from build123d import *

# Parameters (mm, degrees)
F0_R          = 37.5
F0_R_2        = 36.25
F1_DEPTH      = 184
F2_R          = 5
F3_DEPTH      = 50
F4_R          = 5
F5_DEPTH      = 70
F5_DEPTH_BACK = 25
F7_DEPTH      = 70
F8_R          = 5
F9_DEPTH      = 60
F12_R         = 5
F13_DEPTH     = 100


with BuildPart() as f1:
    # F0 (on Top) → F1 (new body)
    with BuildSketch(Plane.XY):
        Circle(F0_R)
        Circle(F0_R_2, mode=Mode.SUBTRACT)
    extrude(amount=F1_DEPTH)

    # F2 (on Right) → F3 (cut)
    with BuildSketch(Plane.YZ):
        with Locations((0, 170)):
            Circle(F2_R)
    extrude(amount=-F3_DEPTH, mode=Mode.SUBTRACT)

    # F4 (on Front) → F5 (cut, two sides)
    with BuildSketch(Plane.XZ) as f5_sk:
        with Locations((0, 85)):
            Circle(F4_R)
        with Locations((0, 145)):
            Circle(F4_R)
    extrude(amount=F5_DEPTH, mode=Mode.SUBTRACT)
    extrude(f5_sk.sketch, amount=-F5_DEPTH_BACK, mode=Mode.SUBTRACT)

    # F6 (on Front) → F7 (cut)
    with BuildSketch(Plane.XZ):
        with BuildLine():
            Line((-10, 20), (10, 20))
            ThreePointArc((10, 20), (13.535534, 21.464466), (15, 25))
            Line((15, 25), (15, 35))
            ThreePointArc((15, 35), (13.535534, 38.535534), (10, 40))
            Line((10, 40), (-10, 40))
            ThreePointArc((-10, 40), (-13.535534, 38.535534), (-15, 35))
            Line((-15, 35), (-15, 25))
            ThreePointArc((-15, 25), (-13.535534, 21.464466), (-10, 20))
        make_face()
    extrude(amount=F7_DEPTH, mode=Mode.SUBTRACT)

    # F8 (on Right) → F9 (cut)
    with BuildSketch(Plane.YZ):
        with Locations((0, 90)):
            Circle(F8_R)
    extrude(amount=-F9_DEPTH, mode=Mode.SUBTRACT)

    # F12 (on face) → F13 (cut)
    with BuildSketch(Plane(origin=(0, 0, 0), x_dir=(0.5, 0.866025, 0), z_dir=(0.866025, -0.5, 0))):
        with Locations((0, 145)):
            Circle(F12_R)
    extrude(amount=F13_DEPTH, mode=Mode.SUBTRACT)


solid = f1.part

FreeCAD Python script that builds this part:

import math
import FreeCAD as App
import Part
import Sketcher
from FreeCAD import Vector
Q = App.Units.Quantity

doc = App.newDocument("Part")
body = doc.addObject("PartDesign::Body", "Body")

sketch1 = doc.addObject("Sketcher::SketchObject", "Sketch")
body.addObject(sketch1)
sketch1.AttachmentSupport = (doc.XY_Plane, [""])
sketch1.MapMode = "FlatFace"
sketch1.addGeometry(Part.Circle(Vector(0, 0, 0), Vector(0, 0, 1), 38), False)
sketch1.addGeometry(Part.Circle(Vector(0, 0, 0), Vector(0, 0, 1), 36), False)
sketch1.addConstraint(Sketcher.Constraint("Coincident", 0, 3, -1, 1))
sketch1.addConstraint(Sketcher.Constraint("Coincident", 1, 3, -1, 1))
sketch1.addConstraint(Sketcher.Constraint("Diameter", 0, Q("75 mm")))
sketch1.addConstraint(Sketcher.Constraint("Diameter", 1, Q("72.5 mm")))
pad1 = doc.addObject("PartDesign::Pad", "Pad")
body.addObject(pad1)
pad1.Profile = sketch1
pad1.Length = 184

sketch2 = doc.addObject("Sketcher::SketchObject", "Sketch001")
body.addObject(sketch2)
sketch2.AttachmentSupport = (doc.YZ_Plane, [""])
sketch2.MapMode = "FlatFace"
sketch2.addGeometry(Part.Circle(Vector(0, 170, 0), Vector(0, 0, 1), 5), False)
sketch2.addConstraint(Sketcher.Constraint("PointOnObject", 0, 3, -2))
sketch2.addConstraint(Sketcher.Constraint("Diameter", 0, Q("10 mm")))
sketch2.addConstraint(Sketcher.Constraint("DistanceY", -1, 1, 0, 3, Q("170 mm")))
pocket1 = doc.addObject("PartDesign::Pocket", "Pocket")
body.addObject(pocket1)
pocket1.Profile = sketch2
pocket1.Length = 50

sketch3 = doc.addObject("Sketcher::SketchObject", "Sketch002")
body.addObject(sketch3)
sketch3.AttachmentSupport = (doc.XZ_Plane, [""])
sketch3.MapMode = "FlatFace"
sketch3.addGeometry(Part.Circle(Vector(0, 85, 0), Vector(0, 0, 1), 5), False)
sketch3.addGeometry(Part.Circle(Vector(0, 145, 0), Vector(0, 0, 1), 5), False)
sketch3.addConstraint(Sketcher.Constraint("Equal", 0, 1))
sketch3.addConstraint(Sketcher.Constraint("PointOnObject", 0, 3, -2))
sketch3.addConstraint(Sketcher.Constraint("PointOnObject", 1, 3, -2))
sketch3.addConstraint(Sketcher.Constraint("Diameter", 0, Q("10 mm")))
sketch3.addConstraint(Sketcher.Constraint("DistanceY", -1, 1, 0, 3, Q("85 mm")))
sketch3.addConstraint(Sketcher.Constraint("DistanceY", -1, 1, 1, 3, Q("145 mm")))
pocket2 = doc.addObject("PartDesign::Pocket", "Pocket001")
body.addObject(pocket2)
pocket2.Profile = sketch3
pocket2.Type = "TwoLengths"
pocket2.Length = 70
pocket2.Length2 = 25
pocket2.Reversed = True

sketch4 = doc.addObject("Sketcher::SketchObject", "Sketch003")
body.addObject(sketch4)
sketch4.AttachmentSupport = (doc.XZ_Plane, [""])
sketch4.MapMode = "FlatFace"
sketch4.addGeometry(Part.LineSegment(Vector(-10, 20, 0), Vector(10, 20, 0)), False)
sketch4.addGeometry(Part.ArcOfCircle(Part.Circle(Vector(10, 25, 0), Vector(0, 0, 1), 5), math.radians(-90), math.radians(0)), False)
sketch4.addGeometry(Part.LineSegment(Vector(15, 25, 0), Vector(15, 35, 0)), False)
sketch4.addGeometry(Part.ArcOfCircle(Part.Circle(Vector(10, 35, 0), Vector(0, 0, 1), 5), math.radians(0), math.radians(90)), False)
sketch4.addGeometry(Part.LineSegment(Vector(10, 40, 0), Vector(-10, 40, 0)), False)
sketch4.addGeometry(Part.ArcOfCircle(Part.Circle(Vector(-10, 35, 0), Vector(0, 0, 1), 5), math.radians(90), math.radians(180)), False)
sketch4.addGeometry(Part.LineSegment(Vector(-15, 35, 0), Vector(-15, 25, 0)), False)
sketch4.addGeometry(Part.ArcOfCircle(Part.Circle(Vector(-10, 25, 0), Vector(0, 0, 1), 5), math.radians(180), math.radians(270)), False)
sketch4.addConstraint(Sketcher.Constraint("Tangent", 0, 2, 1, 1))
sketch4.addConstraint(Sketcher.Constraint("Tangent", 1, 2, 2, 1))
sketch4.addConstraint(Sketcher.Constraint("Tangent", 2, 2, 3, 1))
sketch4.addConstraint(Sketcher.Constraint("Tangent", 3, 2, 4, 1))
sketch4.addConstraint(Sketcher.Constraint("Tangent", 4, 2, 5, 1))
sketch4.addConstraint(Sketcher.Constraint("Tangent", 5, 2, 6, 1))
sketch4.addConstraint(Sketcher.Constraint("Tangent", 6, 2, 7, 1))
sketch4.addConstraint(Sketcher.Constraint("Tangent", 7, 2, 0, 1))
sketch4.addConstraint(Sketcher.Constraint("Horizontal", 0))
sketch4.addConstraint(Sketcher.Constraint("Vertical", 2))
sketch4.addConstraint(Sketcher.Constraint("Horizontal", 4))
sketch4.addConstraint(Sketcher.Constraint("Vertical", 6))
sketch4.addConstraint(Sketcher.Constraint("Equal", 1, 3))
sketch4.addConstraint(Sketcher.Constraint("Equal", 3, 5))
sketch4.addConstraint(Sketcher.Constraint("Equal", 5, 7))
sketch4.addConstraint(Sketcher.Constraint("Radius", 1, Q("5 mm")))
sketch4.addConstraint(Sketcher.Constraint("DistanceX", 0, 1, 0, 2, Q("20 mm")))
sketch4.addConstraint(Sketcher.Constraint("DistanceY", 2, 1, 2, 2, Q("10 mm")))
sketch4.addConstraint(Sketcher.Constraint("DistanceX", -1, 1, 1, 3, Q("10 mm")))
sketch4.addConstraint(Sketcher.Constraint("DistanceY", -1, 1, 1, 3, Q("25 mm")))
pocket3 = doc.addObject("PartDesign::Pocket", "Pocket002")
body.addObject(pocket3)
pocket3.Profile = sketch4
pocket3.Length = 70
pocket3.Reversed = True

sketch5 = doc.addObject("Sketcher::SketchObject", "Sketch004")
body.addObject(sketch5)
sketch5.AttachmentSupport = (doc.YZ_Plane, [""])
sketch5.MapMode = "FlatFace"
sketch5.addGeometry(Part.Circle(Vector(0, 90, 0), Vector(0, 0, 1), 5), False)
sketch5.addConstraint(Sketcher.Constraint("PointOnObject", 0, 3, -2))
sketch5.addConstraint(Sketcher.Constraint("Diameter", 0, Q("10 mm")))
sketch5.addConstraint(Sketcher.Constraint("DistanceY", -1, 1, 0, 3, Q("90 mm")))
pocket4 = doc.addObject("PartDesign::Pocket", "Pocket003")
body.addObject(pocket4)
pocket4.Profile = sketch5
pocket4.Length = 60

sketch6 = doc.addObject("Sketcher::SketchObject", "Sketch005")
body.addObject(sketch6)
sketch6.Placement = App.Placement(Vector(0, 0, 0), App.Rotation(Vector(0.500000175, 0.866025303, 0), Vector(0, 0, 1), Vector(0.866025303, -0.500000175, 0), "ZXY"))
sketch6.addGeometry(Part.Circle(Vector(0, 145, 0), Vector(0, 0, 1), 5), False)
sketch6.addConstraint(Sketcher.Constraint("PointOnObject", 0, 3, -2))
sketch6.addConstraint(Sketcher.Constraint("Diameter", 0, Q("10 mm")))
sketch6.addConstraint(Sketcher.Constraint("DistanceY", -1, 1, 0, 3, Q("145 mm")))
pocket5 = doc.addObject("PartDesign::Pocket", "Pocket004")
body.addObject(pocket5)
pocket5.Profile = sketch6
pocket5.Length = 100
pocket5.Reversed = True

doc.recompute()
